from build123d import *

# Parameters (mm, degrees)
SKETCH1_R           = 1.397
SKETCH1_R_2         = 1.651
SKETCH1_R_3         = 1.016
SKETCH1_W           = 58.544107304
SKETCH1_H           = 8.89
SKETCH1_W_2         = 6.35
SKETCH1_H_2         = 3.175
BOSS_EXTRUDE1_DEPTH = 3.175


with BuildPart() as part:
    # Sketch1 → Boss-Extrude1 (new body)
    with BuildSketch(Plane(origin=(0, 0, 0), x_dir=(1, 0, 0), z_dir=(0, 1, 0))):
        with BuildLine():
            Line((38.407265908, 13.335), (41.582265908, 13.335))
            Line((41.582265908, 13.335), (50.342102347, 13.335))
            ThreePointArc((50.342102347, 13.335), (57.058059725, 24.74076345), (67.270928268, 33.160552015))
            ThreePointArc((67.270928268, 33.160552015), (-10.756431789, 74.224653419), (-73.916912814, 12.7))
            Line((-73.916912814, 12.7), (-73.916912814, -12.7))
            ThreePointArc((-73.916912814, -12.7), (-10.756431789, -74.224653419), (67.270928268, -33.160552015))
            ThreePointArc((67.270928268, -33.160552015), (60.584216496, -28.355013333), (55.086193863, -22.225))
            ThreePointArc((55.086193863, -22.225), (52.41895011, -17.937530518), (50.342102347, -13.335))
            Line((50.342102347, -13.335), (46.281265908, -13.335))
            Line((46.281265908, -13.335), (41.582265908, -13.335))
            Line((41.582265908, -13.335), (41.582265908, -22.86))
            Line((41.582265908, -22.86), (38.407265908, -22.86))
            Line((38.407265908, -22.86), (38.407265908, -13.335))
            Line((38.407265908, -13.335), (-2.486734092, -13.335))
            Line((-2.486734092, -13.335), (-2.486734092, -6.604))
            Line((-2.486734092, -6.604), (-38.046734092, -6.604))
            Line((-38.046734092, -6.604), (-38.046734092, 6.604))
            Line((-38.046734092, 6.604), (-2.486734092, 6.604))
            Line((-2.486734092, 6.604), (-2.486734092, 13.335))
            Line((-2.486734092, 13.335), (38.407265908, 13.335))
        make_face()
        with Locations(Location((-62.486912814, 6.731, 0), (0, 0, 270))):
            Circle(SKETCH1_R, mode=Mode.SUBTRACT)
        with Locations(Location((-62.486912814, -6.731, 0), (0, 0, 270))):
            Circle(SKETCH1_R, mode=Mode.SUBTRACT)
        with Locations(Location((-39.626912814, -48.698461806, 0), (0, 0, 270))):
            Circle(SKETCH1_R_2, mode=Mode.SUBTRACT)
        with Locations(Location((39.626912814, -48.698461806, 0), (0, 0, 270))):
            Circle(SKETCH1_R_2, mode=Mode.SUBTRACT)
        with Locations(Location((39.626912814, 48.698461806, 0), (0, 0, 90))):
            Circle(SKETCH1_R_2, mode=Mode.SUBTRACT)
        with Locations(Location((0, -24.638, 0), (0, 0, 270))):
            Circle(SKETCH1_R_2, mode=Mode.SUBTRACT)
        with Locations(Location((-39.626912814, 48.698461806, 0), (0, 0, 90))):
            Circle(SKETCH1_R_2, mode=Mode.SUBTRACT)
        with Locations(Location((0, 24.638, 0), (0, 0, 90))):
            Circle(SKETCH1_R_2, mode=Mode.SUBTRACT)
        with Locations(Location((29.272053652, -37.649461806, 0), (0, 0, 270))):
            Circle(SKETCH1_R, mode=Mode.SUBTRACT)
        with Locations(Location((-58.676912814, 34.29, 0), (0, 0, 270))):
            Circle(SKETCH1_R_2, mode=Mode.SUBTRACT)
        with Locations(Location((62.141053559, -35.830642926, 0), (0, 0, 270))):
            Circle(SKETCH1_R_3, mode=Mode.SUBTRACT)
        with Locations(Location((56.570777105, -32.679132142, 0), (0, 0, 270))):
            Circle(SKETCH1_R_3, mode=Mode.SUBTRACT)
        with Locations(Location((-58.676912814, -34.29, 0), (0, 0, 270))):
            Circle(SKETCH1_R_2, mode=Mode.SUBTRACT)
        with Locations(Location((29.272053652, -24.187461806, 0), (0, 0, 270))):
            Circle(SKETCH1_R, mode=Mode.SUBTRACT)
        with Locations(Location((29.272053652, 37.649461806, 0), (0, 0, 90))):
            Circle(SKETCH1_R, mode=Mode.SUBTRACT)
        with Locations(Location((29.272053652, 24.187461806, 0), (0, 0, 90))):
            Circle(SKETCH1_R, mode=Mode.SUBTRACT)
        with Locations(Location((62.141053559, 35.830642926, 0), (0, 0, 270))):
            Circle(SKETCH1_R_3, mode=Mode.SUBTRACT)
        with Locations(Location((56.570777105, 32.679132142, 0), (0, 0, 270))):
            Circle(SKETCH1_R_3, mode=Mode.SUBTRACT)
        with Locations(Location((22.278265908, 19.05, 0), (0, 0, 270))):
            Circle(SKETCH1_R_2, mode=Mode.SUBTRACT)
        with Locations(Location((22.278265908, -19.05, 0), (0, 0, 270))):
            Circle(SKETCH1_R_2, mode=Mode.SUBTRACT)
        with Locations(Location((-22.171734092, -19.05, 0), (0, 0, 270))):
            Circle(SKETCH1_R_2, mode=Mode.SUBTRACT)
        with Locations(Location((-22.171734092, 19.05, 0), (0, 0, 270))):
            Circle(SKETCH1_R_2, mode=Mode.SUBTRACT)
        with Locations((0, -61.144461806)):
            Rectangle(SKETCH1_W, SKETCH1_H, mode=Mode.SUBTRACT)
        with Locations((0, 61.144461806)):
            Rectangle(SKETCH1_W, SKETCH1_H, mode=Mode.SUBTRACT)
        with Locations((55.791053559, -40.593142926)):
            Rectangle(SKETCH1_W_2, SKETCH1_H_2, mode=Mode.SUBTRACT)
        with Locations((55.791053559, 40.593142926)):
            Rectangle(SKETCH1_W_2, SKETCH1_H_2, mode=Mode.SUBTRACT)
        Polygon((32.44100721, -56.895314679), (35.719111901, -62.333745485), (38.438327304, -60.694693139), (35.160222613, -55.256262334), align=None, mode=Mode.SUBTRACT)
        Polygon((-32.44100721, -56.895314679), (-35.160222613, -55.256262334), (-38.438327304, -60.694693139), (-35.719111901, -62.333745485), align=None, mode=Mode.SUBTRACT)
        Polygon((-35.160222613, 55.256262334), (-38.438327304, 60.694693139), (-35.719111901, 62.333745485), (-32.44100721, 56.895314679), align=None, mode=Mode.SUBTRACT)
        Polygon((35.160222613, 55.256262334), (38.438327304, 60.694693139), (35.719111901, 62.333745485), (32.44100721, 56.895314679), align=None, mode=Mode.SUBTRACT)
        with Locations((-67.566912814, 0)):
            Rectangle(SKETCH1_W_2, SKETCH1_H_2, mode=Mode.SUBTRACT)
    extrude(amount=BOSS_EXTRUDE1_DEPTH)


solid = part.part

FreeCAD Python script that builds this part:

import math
import FreeCAD as App
import Part
import Sketcher
Q = App.Units.Quantity


def add_polygon(sketch, points):
    """Adds a closed chain of lines whose ends are joined by coincident constraints."""
    first, n = sketch.GeometryCount, len(points)
    for a, b in zip(points, points[1:] + points[:1]):
        sketch.addGeometry(Part.LineSegment(App.Vector(*a, 0), App.Vector(*b, 0)), False)
    for i in range(n):
        sketch.addConstraint(Sketcher.Constraint("Coincident", first + i, 2, first + (i + 1) % n, 1))

doc = App.newDocument("Part")
body = doc.addObject("PartDesign::Body", "Body")

# Sketch on XZ plane
sketch1 = body.newObject("Sketcher::SketchObject", "Sketch")
sketch1.AttachmentSupport = (doc.getObject("XZ_Plane"), [""])
sketch1.MapMode = "FlatFace"
sketch1.addGeometry(Part.ArcOfCircle(Part.Circle(App.Vector(86, 0, 0), App.Vector(0, 0, 1), 38.1), math.radians(-160), math.radians(-119)), False)  # 0
sketch1.addGeometry(Part.ArcOfCircle(Part.Circle(App.Vector(0, 0, 0), App.Vector(0, 0, 1), 75), math.radians(-170), math.radians(-26)), False)  # 1
sketch1.addGeometry(Part.LineSegment(App.Vector(-73.9, -12.7, 0), App.Vector(-73.9, 12.7, 0)), False)  # 2
sketch1.addGeometry(Part.ArcOfCircle(Part.Circle(App.Vector(0, 0, 0), App.Vector(0, 0, 1), 75), math.radians(26), math.radians(170)), False)  # 3
sketch1.addGeometry(Part.ArcOfCircle(Part.Circle(App.Vector(86, 0, 0), App.Vector(0, 0, 1), 38.1), math.radians(119), math.radians(144)), False)  # 4
sketch1.addGeometry(Part.ArcOfCircle(Part.Circle(App.Vector(86, 0, 0), App.Vector(0, 0, 1), 38.1), math.radians(144.31), math.radians(159.51)), False)  # 5
sketch1.addGeometry(Part.LineSegment(App.Vector(50.3, 13.3, 0), App.Vector(41.6, 13.3, 0)), False)  # 6
sketch1.addGeometry(Part.LineSegment(App.Vector(41.6, 13.3, 0), App.Vector(41.6, 22.9, 0)), False)  # 7
sketch1.addGeometry(Part.LineSegment(App.Vector(41.6, 22.9, 0), App.Vector(38.4, 22.9, 0)), False)  # 8
sketch1.addGeometry(Part.LineSegment(App.Vector(38.4, 22.9, 0), App.Vector(38.4, 13.3, 0)), False)  # 9
sketch1.addGeometry(Part.LineSegment(App.Vector(38.4, 13.3, 0), App.Vector(-2.5, 13.3, 0)), False)  # 10
sketch1.addGeometry(Part.LineSegment(App.Vector(-2.5, 13.3, 0), App.Vector(-2.5, 6.6, 0)), False)  # 11
sketch1.addGeometry(Part.LineSegment(App.Vector(-2.5, 6.6, 0), App.Vector(-38, 6.6, 0)), False)  # 12
sketch1.addGeometry(Part.LineSegment(App.Vector(-38, 6.6, 0), App.Vector(-38, -6.6, 0)), False)  # 13
sketch1.addGeometry(Part.LineSegment(App.Vector(-38, -6.6, 0), App.Vector(-2.5, -6.6, 0)), False)  # 14
sketch1.addGeometry(Part.LineSegment(App.Vector(-2.5, -6.6, 0), App.Vector(-2.5, -13.3, 0)), False)  # 15
sketch1.addGeometry(Part.LineSegment(App.Vector(-2.5, -13.3, 0), App.Vector(50.3, -13.3, 0)), False)  # 16
sketch1.addGeometry(Part.Circle(App.Vector(-58.7, 34.3, 0), App.Vector(0, 0, 1), 1.7), False)  # 17
sketch1.addGeometry(Part.Circle(App.Vector(-39.6, 48.7, 0), App.Vector(0, 0, 1), 1.7), False)  # 18
add_polygon(sketch1, [(-35.2, 55.3), (-32.4, 56.9), (-35.7, 62.3), (-38.4, 60.7)])  # lines 19-22
sketch1.addGeometry(Part.Circle(App.Vector(-62.5, 6.7, 0), App.Vector(0, 0, 1), 1.4), False)  # 23
sketch1.addGeometry(Part.Circle(App.Vector(-22.2, 19.1, 0), App.Vector(0, 0, 1), 1.7), False)  # 24
add_polygon(sketch1, [(29.3, 65.6), (-29.3, 65.6), (-29.3, 56.7), (29.3, 56.7)])  # lines 25-28
sketch1.addGeometry(Part.Circle(App.Vector(29.3, 37.6, 0), App.Vector(0, 0, 1), 1.4), False)  # 29
add_polygon(sketch1, [(35.7, 62.3), (32.4, 56.9), (35.2, 55.3), (38.4, 60.7)])  # lines 30-33
sketch1.addGeometry(Part.Circle(App.Vector(39.6, 48.7, 0), App.Vector(0, 0, 1), 1.7), False)  # 34
add_polygon(sketch1, [(59, 42.2), (52.6, 42.2), (52.6, 39), (59, 39)])  # lines 35-38
sketch1.addGeometry(Part.Circle(App.Vector(62.1, 35.8, 0), App.Vector(0, 0, 1), 1), False)  # 39
sketch1.addGeometry(Part.Circle(App.Vector(0, 24.6, 0), App.Vector(0, 0, 1), 1.7), False)  # 40
sketch1.addGeometry(Part.Circle(App.Vector(29.3, 24.2, 0), App.Vector(0, 0, 1), 1.4), False)  # 41
sketch1.addGeometry(Part.Circle(App.Vector(22.3, 19.1, 0), App.Vector(0, 0, 1), 1.7), False)  # 42
sketch1.addGeometry(Part.Circle(App.Vector(56.6, 32.7, 0), App.Vector(0, 0, 1), 1), False)  # 43
add_polygon(sketch1, [(-64.4, 1.6), (-70.7, 1.6), (-70.7, -1.6), (-64.4, -1.6)])  # lines 44-47
sketch1.addGeometry(Part.Circle(App.Vector(-62.5, -6.7, 0), App.Vector(0, 0, 1), 1.4), False)  # 48
sketch1.addGeometry(Part.Circle(App.Vector(-22.2, -19.1, 0), App.Vector(0, 0, 1), 1.7), False)  # 49
sketch1.addGeometry(Part.Circle(App.Vector(-58.7, -34.3, 0), App.Vector(0, 0, 1), 1.7), False)  # 50
sketch1.addGeometry(Part.Circle(App.Vector(-39.6, -48.7, 0), App.Vector(0, 0, 1), 1.7), False)  # 51
add_polygon(sketch1, [(-32.4, -56.9), (-35.2, -55.3), (-38.4, -60.7), (-35.7, -62.3)])  # lines 52-55
sketch1.addGeometry(Part.Circle(App.Vector(0, -24.6, 0), App.Vector(0, 0, 1), 1.7), False)  # 56
sketch1.addGeometry(Part.Circle(App.Vector(22.3, -19.1, 0), App.Vector(0, 0, 1), 1.7), False)  # 57
sketch1.addGeometry(Part.Circle(App.Vector(29.3, -24.2, 0), App.Vector(0, 0, 1), 1.4), False)  # 58
sketch1.addGeometry(Part.Circle(App.Vector(56.6, -32.7, 0), App.Vector(0, 0, 1), 1), False)  # 59
sketch1.addGeometry(Part.Circle(App.Vector(29.3, -37.6, 0), App.Vector(0, 0, 1), 1.4), False)  # 60
add_polygon(sketch1, [(29.3, -56.7), (-29.3, -56.7), (-29.3, -65.6), (29.3, -65.6)])  # lines 61-64
sketch1.addGeometry(Part.Circle(App.Vector(39.6, -48.7, 0), App.Vector(0, 0, 1), 1.7), False)  # 65
sketch1.addGeometry(Part.Circle(App.Vector(62.1, -35.8, 0), App.Vector(0, 0, 1), 1), False)  # 66
add_polygon(sketch1, [(59, -39), (52.6, -39), (52.6, -42.2), (59, -42.2)])  # lines 67-70
add_polygon(sketch1, [(38.4, -60.7), (35.2, -55.3), (32.4, -56.9), (35.7, -62.3)])  # lines 71-74
sketch1.addConstraint([
    Sketcher.Constraint("Coincident", 0, 2, 1, 2),
    Sketcher.Constraint("Coincident", 1, 1, 2, 1),
    Sketcher.Constraint("Coincident", 2, 2, 3, 2),
    Sketcher.Constraint("Coincident", 3, 1, 4, 1),
    Sketcher.Constraint("Tangent", 4, 2, 5, 1),
    Sketcher.Constraint("Coincident", 5, 2, 6, 1),
    Sketcher.Constraint("Coincident", 6, 2, 7, 1),
    Sketcher.Constraint("Coincident", 7, 2, 8, 1),
    Sketcher.Constraint("Coincident", 8, 2, 9, 1),
    Sketcher.Constraint("Coincident", 9, 2, 10, 1),
    Sketcher.Constraint("Coincident", 10, 2, 11, 1),
    Sketcher.Constraint("Coincident", 11, 2, 12, 1),
    Sketcher.Constraint("Coincident", 12, 2, 13, 1),
    Sketcher.Constraint("Coincident", 13, 2, 14, 1),
    Sketcher.Constraint("Coincident", 14, 2, 15, 1),
    Sketcher.Constraint("Coincident", 15, 2, 16, 1),
    Sketcher.Constraint("Coincident", 16, 2, 0, 1),
    Sketcher.Constraint("Vertical", 2),
    Sketcher.Constraint("Horizontal", 6),
    Sketcher.Constraint("Vertical", 7),
    Sketcher.Constraint("Horizontal", 8),
    Sketcher.Constraint("Vertical", 9),
    Sketcher.Constraint("Horizontal", 10),
    Sketcher.Constraint("Vertical", 11),
    Sketcher.Constraint("Horizontal", 12),
    Sketcher.Constraint("Vertical", 13),
    Sketcher.Constraint("Horizontal", 14),
    Sketcher.Constraint("Vertical", 15),
    Sketcher.Constraint("Horizontal", 16),
    Sketcher.Constraint("Horizontal", 25),
    Sketcher.Constraint("Vertical", 26),
    Sketcher.Constraint("Horizontal", 27),
    Sketcher.Constraint("Vertical", 28),
    Sketcher.Constraint("Horizontal", 35),
    Sketcher.Constraint("Vertical", 36),
    Sketcher.Constraint("Horizontal", 37),
    Sketcher.Constraint("Vertical", 38),
    Sketcher.Constraint("Horizontal", 44),
    Sketcher.Constraint("Vertical", 45),
    Sketcher.Constraint("Horizontal", 46),
    Sketcher.Constraint("Vertical", 47),
    Sketcher.Constraint("Horizontal", 61),
    Sketcher.Constraint("Vertical", 62),
    Sketcher.Constraint("Horizontal", 63),
    Sketcher.Constraint("Vertical", 64),
    Sketcher.Constraint("Horizontal", 67),
    Sketcher.Constraint("Vertical", 68),
    Sketcher.Constraint("Horizontal", 69),
    Sketcher.Constraint("Vertical", 70),
    Sketcher.Constraint("Coincident", 1, 3, -1, 1),
    Sketcher.Constraint("Coincident", 3, 3, -1, 1),
    Sketcher.Constraint("Coincident", 4, 3, 0, 3),
    Sketcher.Constraint("Equal", 1, 3),
    Sketcher.Constraint("Equal", 0, 4),
    Sketcher.Constraint("Equal", 4, 5),
    Sketcher.Constraint("Equal", 17, 18),
    Sketcher.Constraint("Equal", 18, 24),
    Sketcher.Constraint("Equal", 23, 29),
    Sketcher.Constraint("Equal", 24, 34),
    Sketcher.Constraint("Equal", 34, 40),
    Sketcher.Constraint("Equal", 29, 41),
    Sketcher.Constraint("Equal", 40, 42),
    Sketcher.Constraint("Equal", 39, 43),
    Sketcher.Constraint("Equal", 41, 48),
    Sketcher.Constraint("Equal", 42, 49),
    Sketcher.Constraint("Equal", 49, 50),
    Sketcher.Constraint("Equal", 50, 51),
    Sketcher.Constraint("Equal", 51, 56),
    Sketcher.Constraint("Equal", 56, 57),
    Sketcher.Constraint("Equal", 48, 58),
    Sketcher.Constraint("Equal", 43, 59),
    Sketcher.Constraint("Equal", 58, 60),
    Sketcher.Constraint("Equal", 57, 65),
    Sketcher.Constraint("Equal", 59, 66),
    Sketcher.Constraint("Symmetric", 34, 3, 51, 3, -1, 1),
    Sketcher.Constraint("Symmetric", 40, 3, 56, 3, -1, 1),
    Sketcher.Constraint("Symmetric", 18, 3, 65, 3, -1, 1),
    Sketcher.Constraint("Symmetric", 31, 2, 52, 2, -1, 1),
    Sketcher.Constraint("Symmetric", 32, 2, 53, 2, -1, 1),
    Sketcher.Constraint("Symmetric", 33, 2, 54, 2, -1, 1),
    Sketcher.Constraint("Symmetric", 30, 2, 55, 2, -1, 1),
    Sketcher.Constraint("Symmetric", 27, 2, 61, 2, -1, 1),
    Sketcher.Constraint("Symmetric", 25, 2, 63, 2, -1, 1),
    Sketcher.Constraint("Symmetric", 22, 2, 71, 2, -1, 1),
    Sketcher.Constraint("Symmetric", 19, 2, 72, 2, -1, 1),
    Sketcher.Constraint("Symmetric", 20, 2, 73, 2, -1, 1),
    Sketcher.Constraint("Symmetric", 21, 2, 74, 2, -1, 1),
    Sketcher.Constraint("Symmetric", 18, 3, 34, 3, -2),
    Sketcher.Constraint("Symmetric", 19, 2, 30, 2, -2),
    Sketcher.Constraint("Symmetric", 22, 2, 31, 2, -2),
    Sketcher.Constraint("Symmetric", 21, 2, 32, 2, -2),
    Sketcher.Constraint("Symmetric", 20, 2, 33, 2, -2),
    Sketcher.Constraint("Symmetric", 23, 3, 48, 3, -1),
    Sketcher.Constraint("Symmetric", 24, 3, 49, 3, -1),
    Sketcher.Constraint("Symmetric", 17, 3, 50, 3, -1),
    Sketcher.Constraint("Symmetric", 42, 3, 57, 3, -1),
    Sketcher.Constraint("Symmetric", 41, 3, 58, 3, -1),
    Sketcher.Constraint("Symmetric", 43, 3, 59, 3, -1),
    Sketcher.Constraint("Symmetric", 29, 3, 60, 3, -1),
    Sketcher.Constraint("Symmetric", 39, 3, 66, 3, -1),
    Sketcher.Constraint("Symmetric", 11, 2, 14, 2, -1),
    Sketcher.Constraint("Symmetric", 5, 2, 16, 2, -1),
    Sketcher.Constraint("Symmetric", 36, 2, 67, 2, -1),
    Sketcher.Constraint("Symmetric", 38, 2, 69, 2, -1),
    Sketcher.Constraint("PointOnObject", 40, 3, -2),
    Sketcher.Constraint("Perpendicular", 19, 20),
    Sketcher.Constraint("Perpendicular", 20, 21),
    Sketcher.Constraint("Perpendicular", 21, 22),
    Sketcher.Constraint("Horizontal", 24, 3, 42, 3),
    Sketcher.Constraint("Horizontal", 6, 2, 9, 2),
    Sketcher.Constraint("Vertical", 29, 3, 41, 3),
    Sketcher.Constraint("Vertical", 60, 3, 27, 2),
    Sketcher.Constraint("Vertical", 26, 2, 61, 2),
    Sketcher.Constraint("Equal", 37, 44),
    Sketcher.Constraint("Equal", 8, 36),
    Sketcher.Constraint("Equal", 38, 45),
    Sketcher.Constraint("Radius", 0, Q("1.5 in")),
    Sketcher.Constraint("Diameter", 17, Q("0.13 in")),
    Sketcher.Constraint("Diameter", 23, Q("0.11 in")),
    Sketcher.Constraint("Diameter", 39, Q("0.08 in")),
    Sketcher.Constraint("DistanceY", 2, 1, 2, 2, Q("1 in")),
    Sketcher.Constraint("DistanceX", 12, 2, 12, 1, Q("1.4 in")),
    Sketcher.Constraint("DistanceX", 10, 2, 10, 1, Q("1.61 in")),
    Sketcher.Constraint("DistanceX", 35, 2, 35, 1, Q("0.25 in")),
    Sketcher.Constraint("DistanceY", 13, 2, 13, 1, Q("0.52 in")),
    Sketcher.Constraint("DistanceY", 26, 2, 26, 1, Q("0.35 in")),
    Sketcher.Constraint("DistanceY", -1, 1, 7, 2, Q("0.9 in")),
    Sketcher.Constraint("Distance", 20, Q("0.25 in")),
    Sketcher.Constraint("DistanceX", 8, 2, 8, 1, Q("0.125 in")),
    Sketcher.Constraint("DistanceY", 7, 1, 7, 2, Q("0.375 in")),
    Sketcher.Constraint("DistanceY", -1, 1, 17, 3, Q("1.35 in")),
    Sketcher.Constraint("DistanceY", -1, 1, 24, 3, Q("0.75 in")),
    Sketcher.Constraint("DistanceY", -1, 1, 40, 3, Q("0.97 in")),
    Sketcher.Constraint("Radius", 1, Q("75 mm")),
    Sketcher.Constraint("Distance", 19, Q("0.125 in")),
    Sketcher.Constraint("DistanceY", -1, 1, 23, 3, Q("0.265 in")),
    Sketcher.Constraint("DistanceY", -1, 1, 4, 2, Q("0.875 in")),
    Sketcher.Constraint("DistanceY", -1, 1, 44, 2, Q("0.0625 in")),
    Sketcher.Constraint("DistanceX", 6, 2, 6, 1, Q("8.759836 mm")),
    Sketcher.Constraint("DistanceX", 25, 2, 25, 1, Q("58.544107 mm")),
    Sketcher.Constraint("DistanceY", -1, 1, 18, 3, Q("48.698462 mm")),
    Sketcher.Constraint("DistanceY", -1, 1, 29, 3, Q("37.649462 mm")),
    Sketcher.Constraint("DistanceY", -1, 1, 41, 3, Q("24.187462 mm")),
    Sketcher.Constraint("DistanceX", 20, 2, -1, 1, Q("35.719112 mm")),
    Sketcher.Constraint("DistanceY", -1, 1, 25, 2, Q("65.589462 mm")),
    Sketcher.Constraint("DistanceX", -1, 1, 0, 3, Q("86.032266 mm")),
    Sketcher.Constraint("DistanceX", 17, 3, -1, 1, Q("58.676913 mm")),
    Sketcher.Constraint("DistanceX", 18, 3, -1, 1, Q("39.626913 mm")),
    Sketcher.Constraint("DistanceX", 23, 3, -1, 1, Q("62.486913 mm")),
    Sketcher.Constraint("DistanceX", 24, 3, -1, 1, Q("22.171734 mm")),
    Sketcher.Constraint("DistanceX", -1, 1, 39, 3, Q("62.141054 mm")),
    Sketcher.Constraint("DistanceY", -1, 1, 39, 3, Q("35.830643 mm")),
    Sketcher.Constraint("DistanceX", -1, 1, 42, 3, Q("22.278266 mm")),
    Sketcher.Constraint("DistanceX", -1, 1, 43, 3, Q("56.570777 mm")),
    Sketcher.Constraint("DistanceY", -1, 1, 43, 3, Q("32.679132 mm")),
    Sketcher.Constraint("DistanceX", 19, 2, -1, 1, Q("32.441007 mm")),
    Sketcher.Constraint("DistanceY", -1, 1, 19, 2, Q("56.895315 mm")),
    Sketcher.Constraint("DistanceX", -1, 1, 35, 2, Q("52.616054 mm")),
    Sketcher.Constraint("DistanceY", -1, 1, 35, 2, Q("42.180643 mm")),
    Sketcher.Constraint("DistanceX", 44, 2, -1, 1, Q("70.741913 mm")),
])
pad1 = body.newObject("PartDesign::Pad", "Pad")
pad1.Profile = sketch1
pad1.Length = Q("0.125 in")
pad1.Reversed = True

doc.recompute()
